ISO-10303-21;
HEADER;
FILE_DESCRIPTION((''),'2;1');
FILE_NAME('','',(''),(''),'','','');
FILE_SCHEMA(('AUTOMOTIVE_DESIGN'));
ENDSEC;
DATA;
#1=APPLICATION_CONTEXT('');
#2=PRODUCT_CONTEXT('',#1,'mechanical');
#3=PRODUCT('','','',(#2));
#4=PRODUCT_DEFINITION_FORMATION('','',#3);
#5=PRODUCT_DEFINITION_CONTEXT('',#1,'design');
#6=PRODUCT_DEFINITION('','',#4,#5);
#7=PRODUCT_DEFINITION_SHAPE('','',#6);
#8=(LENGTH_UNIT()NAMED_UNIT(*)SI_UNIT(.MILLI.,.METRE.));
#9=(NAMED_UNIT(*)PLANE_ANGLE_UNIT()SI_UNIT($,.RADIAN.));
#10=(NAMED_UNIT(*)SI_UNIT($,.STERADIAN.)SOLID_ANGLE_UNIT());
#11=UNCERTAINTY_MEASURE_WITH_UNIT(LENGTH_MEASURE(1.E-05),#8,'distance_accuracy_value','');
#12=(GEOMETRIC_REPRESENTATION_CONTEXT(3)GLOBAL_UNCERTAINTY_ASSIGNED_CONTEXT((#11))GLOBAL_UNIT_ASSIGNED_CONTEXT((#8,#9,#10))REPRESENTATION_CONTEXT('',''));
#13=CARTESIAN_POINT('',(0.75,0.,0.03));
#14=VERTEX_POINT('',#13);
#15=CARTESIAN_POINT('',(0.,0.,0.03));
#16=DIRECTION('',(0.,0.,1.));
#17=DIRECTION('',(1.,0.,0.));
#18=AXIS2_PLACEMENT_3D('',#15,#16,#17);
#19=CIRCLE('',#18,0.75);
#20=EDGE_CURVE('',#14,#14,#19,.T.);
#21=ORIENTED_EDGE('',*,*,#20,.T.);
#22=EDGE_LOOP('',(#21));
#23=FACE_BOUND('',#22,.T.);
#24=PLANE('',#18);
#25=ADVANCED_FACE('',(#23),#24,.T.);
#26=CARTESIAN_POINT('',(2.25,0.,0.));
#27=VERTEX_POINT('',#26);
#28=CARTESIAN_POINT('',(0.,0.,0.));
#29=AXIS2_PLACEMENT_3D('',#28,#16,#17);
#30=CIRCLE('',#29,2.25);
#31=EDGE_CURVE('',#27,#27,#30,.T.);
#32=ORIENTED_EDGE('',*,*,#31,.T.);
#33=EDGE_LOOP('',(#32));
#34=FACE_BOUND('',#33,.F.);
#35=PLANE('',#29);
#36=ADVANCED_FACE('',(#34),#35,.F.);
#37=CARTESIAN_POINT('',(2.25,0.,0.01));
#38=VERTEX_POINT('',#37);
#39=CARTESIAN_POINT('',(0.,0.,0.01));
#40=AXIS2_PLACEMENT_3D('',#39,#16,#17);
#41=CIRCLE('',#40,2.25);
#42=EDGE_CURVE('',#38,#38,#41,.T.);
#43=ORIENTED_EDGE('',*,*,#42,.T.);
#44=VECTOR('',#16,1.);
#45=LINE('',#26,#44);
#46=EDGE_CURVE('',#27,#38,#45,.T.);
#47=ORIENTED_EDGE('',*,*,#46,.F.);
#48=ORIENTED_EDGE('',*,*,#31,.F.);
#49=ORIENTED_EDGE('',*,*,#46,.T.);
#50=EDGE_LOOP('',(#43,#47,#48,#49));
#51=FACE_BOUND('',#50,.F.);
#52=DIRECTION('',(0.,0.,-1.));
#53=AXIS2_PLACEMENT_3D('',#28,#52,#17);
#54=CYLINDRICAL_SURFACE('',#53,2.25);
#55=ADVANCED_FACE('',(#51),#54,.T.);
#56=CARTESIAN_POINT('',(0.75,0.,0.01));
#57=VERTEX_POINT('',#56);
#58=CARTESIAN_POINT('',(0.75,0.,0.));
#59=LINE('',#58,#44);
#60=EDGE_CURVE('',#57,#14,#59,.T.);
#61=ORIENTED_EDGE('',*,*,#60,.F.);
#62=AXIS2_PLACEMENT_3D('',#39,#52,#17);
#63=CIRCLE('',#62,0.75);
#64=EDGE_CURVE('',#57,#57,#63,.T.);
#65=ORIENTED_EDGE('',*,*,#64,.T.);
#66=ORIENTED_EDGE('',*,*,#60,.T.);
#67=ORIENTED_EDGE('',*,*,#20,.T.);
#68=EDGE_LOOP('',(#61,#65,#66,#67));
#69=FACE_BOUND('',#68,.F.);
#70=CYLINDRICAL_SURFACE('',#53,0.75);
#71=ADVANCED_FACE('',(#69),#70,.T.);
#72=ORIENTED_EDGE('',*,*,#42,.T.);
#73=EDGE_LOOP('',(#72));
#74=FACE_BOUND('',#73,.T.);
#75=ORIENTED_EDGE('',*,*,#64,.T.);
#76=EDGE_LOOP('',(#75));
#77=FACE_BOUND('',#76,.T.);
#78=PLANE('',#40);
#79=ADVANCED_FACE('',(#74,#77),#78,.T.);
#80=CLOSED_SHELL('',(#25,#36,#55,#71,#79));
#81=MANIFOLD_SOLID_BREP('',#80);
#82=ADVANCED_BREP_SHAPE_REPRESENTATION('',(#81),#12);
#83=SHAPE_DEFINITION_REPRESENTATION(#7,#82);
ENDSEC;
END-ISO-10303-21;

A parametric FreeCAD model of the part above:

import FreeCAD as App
import Part
import Sketcher

V = App.Vector

doc = App.newDocument("Part")
body = doc.addObject("PartDesign::Body", "Body")

# Sketch on XY plane
sketch1 = body.newObject("Sketcher::SketchObject", "Sketch")
sketch1.AttachmentSupport = (doc.getObject("XY_Plane"), [""])
sketch1.MapMode = "FlatFace"
sketch1.addGeometry(Part.Circle(V(0, 0, 0), V(0, 0, 1), 2.25), False)
sketch1.addConstraint([
    Sketcher.Constraint("Coincident", 0, 3, -1, 1),
    Sketcher.Constraint("Diameter", 0, 4.5),
])
pad1 = body.newObject("PartDesign::Pad", "Pad")
pad1.Profile = sketch1
pad1.Length = 0.01
body2 = doc.addObject("PartDesign::Body", "Body001")

# Sketch on XY plane
sketch2 = body2.newObject("Sketcher::SketchObject", "Sketch001")
sketch2.AttachmentSupport = (doc.getObject("XY_Plane001"), [""])
sketch2.MapMode = "FlatFace"
sketch2.addGeometry(Part.Circle(V(0, 0, 0), V(0, 0, 1), 0.75), False)
sketch2.addConstraint([
    Sketcher.Constraint("Coincident", 0, 3, -1, 1),
    Sketcher.Constraint("Diameter", 0, 1.5),
])
pad2 = body2.newObject("PartDesign::Pad", "Pad001")
pad2.Profile = sketch2
pad2.Length = 0.03
doc.recompute()

boolean = body2.newObject("PartDesign::Boolean", "Boolean")
boolean.Type = "Fuse"
boolean.addObjects([body])

doc.recompute()
